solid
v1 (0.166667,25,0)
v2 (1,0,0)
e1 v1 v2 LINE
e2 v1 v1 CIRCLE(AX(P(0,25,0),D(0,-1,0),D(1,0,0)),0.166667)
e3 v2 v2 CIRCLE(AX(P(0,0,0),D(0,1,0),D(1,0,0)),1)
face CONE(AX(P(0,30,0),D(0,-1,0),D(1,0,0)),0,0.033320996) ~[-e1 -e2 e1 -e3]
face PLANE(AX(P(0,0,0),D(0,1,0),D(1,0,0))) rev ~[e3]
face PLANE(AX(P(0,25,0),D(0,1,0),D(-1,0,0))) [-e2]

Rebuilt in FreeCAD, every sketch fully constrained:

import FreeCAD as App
import Part
import Sketcher
from FreeCAD import Vector

doc = App.newDocument("Part")
body = doc.addObject("PartDesign::Body", "Body")

# Sketch on XY plane
sketch1 = body.newObject("Sketcher::SketchObject", "Sketch")
sketch1.AttachmentSupport = (doc.getObject("XY_Plane"), [""])
sketch1.MapMode = "FlatFace"
sketch1.addGeometry([
    Part.LineSegment(Vector(0, 30, 0), Vector(0, 0, 0)),
    Part.LineSegment(Vector(0, 0, 0), Vector(1, 0, 0)),
    Part.LineSegment(Vector(1, 0, 0), Vector(0, 30, 0)),
], False)
sketch1.addConstraint([
    Sketcher.Constraint("Coincident", 0, 2, 1, 1),
    Sketcher.Constraint("Coincident", 1, 2, 2, 1),
    Sketcher.Constraint("Coincident", 2, 2, 0, 1),
    Sketcher.Constraint("Vertical", 0),
    Sketcher.Constraint("Horizontal", 1),
    Sketcher.Constraint("Coincident", 0, 2, -1, 1),
    Sketcher.Constraint("DistanceX", 1, 1, 1, 2, 1.0),
    Sketcher.Constraint("DistanceY", 0, 2, 0, 1, 30.0),
])
revolution = body.newObject("PartDesign::Revolution", "Revolution")
revolution.Profile = sketch1
revolution.ReferenceAxis = (sketch1, ["V_Axis"])
revolution.Angle = 360

# Sketch on XZ plane
sketch2 = body.newObject("Sketcher::SketchObject", "Sketch001")
sketch2.AttachmentSupport = (doc.getObject("XZ_Plane"), [""])
sketch2.MapMode = "FlatFace"
sketch2.AttachmentOffset = App.Placement(Vector(0, 0, -30), App.Rotation())
sketch2.addGeometry(Part.Circle(Vector(0, 0, 0), Vector(0, 0, 1), 2.811), False)
sketch2.addConstraint([
    Sketcher.Constraint("Coincident", 0, 3, -1, 1),
    Sketcher.Constraint("Diameter", 0, 5.622),
])
pocket1 = body.newObject("PartDesign::Pocket", "Pocket")
pocket1.Profile = sketch2
pocket1.Length = 5
pocket1.Reversed = True

doc.recompute()
